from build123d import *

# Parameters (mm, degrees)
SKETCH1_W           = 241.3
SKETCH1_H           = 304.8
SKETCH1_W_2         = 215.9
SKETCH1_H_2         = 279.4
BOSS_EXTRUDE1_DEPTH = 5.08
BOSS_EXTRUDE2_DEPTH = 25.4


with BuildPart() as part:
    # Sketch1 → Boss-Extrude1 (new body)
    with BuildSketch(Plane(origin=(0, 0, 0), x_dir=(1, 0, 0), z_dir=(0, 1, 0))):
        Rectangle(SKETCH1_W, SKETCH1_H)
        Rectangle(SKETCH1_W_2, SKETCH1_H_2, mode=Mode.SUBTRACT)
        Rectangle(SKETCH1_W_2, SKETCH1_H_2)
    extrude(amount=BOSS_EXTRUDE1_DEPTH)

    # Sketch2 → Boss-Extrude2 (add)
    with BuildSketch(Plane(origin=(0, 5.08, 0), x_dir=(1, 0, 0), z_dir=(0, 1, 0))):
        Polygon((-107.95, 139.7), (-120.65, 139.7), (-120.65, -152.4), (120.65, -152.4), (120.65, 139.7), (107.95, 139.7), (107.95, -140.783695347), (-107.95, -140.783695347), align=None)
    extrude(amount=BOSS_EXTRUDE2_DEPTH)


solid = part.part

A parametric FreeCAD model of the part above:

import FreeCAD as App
import Part
import Sketcher

V = App.Vector
Q = App.Units.Quantity

doc = App.newDocument("Part")
params = doc.addObject("Spreadsheet::Sheet", "Params")
for row, (alias, value) in enumerate([
    ("sketch1_height", "12 in"),
    ("sketch1_width", "9.5 in"),
    ("pad1_length", "0.2 in"),
    ("sketch2_width", "0.5 in"),
    ("sketch2_width2", "9.5 in"),
    ("sketch2_height", "11.5 in"),
    ("pad2_length", "1 in"),
], start=1):
    params.set(f"A{row}", alias)
    params.set(f"B{row}", "=" + value)
    params.setAlias(f"B{row}", alias)

body = doc.addObject("PartDesign::Body", "Body")

# Sketch on XZ plane
sketch1 = body.newObject("Sketcher::SketchObject", "Sketch")
sketch1.AttachmentSupport = (doc.getObject("XZ_Plane"), [""])
sketch1.MapMode = "FlatFace"
sketch1.addGeometry([
    Part.LineSegment(V(-120.65, -152.4, 0), V(-120.65, 152.4, 0)),
    Part.LineSegment(V(-120.65, 152.4, 0), V(120.65, 152.4, 0)),
    Part.LineSegment(V(120.65, 152.4, 0), V(120.65, -152.4, 0)),
    Part.LineSegment(V(120.65, -152.4, 0), V(-120.65, -152.4, 0)),
], False)
sketch1.addConstraint([
    Sketcher.Constraint("Coincident", 0, 2, 1, 1),
    Sketcher.Constraint("Coincident", 1, 2, 2, 1),
    Sketcher.Constraint("Coincident", 2, 2, 3, 1),
    Sketcher.Constraint("Coincident", 3, 2, 0, 1),
    Sketcher.Constraint("Vertical", 0),
    Sketcher.Constraint("Horizontal", 1),
    Sketcher.Constraint("Vertical", 2),
    Sketcher.Constraint("Horizontal", 3),
    Sketcher.Constraint("Symmetric", 0, 2, 2, 2, -1, 1),
    Sketcher.Constraint("DistanceY", 0, 1, 0, 2, Q("12 in")),
    Sketcher.Constraint("DistanceX", 1, 1, 1, 2, Q("9.5 in")),
])
sketch1.setExpression("Constraints[9]", "Params.sketch1_height")
sketch1.setExpression("Constraints[10]", "Params.sketch1_width")
pad1 = body.newObject("PartDesign::Pad", "Pad")
pad1.Profile = sketch1
pad1.setExpression("Length", "Params.pad1_length")
pad1.Reversed = True

# Sketch on XZ plane
sketch2 = body.newObject("Sketcher::SketchObject", "Sketch001")
sketch2.AttachmentSupport = (doc.getObject("XZ_Plane"), [""])
sketch2.MapMode = "FlatFace"
sketch2.AttachmentOffset = App.Placement(V(0, 0, -0.2 * 25.4), App.Rotation())
sketch2.addGeometry([
    Part.LineSegment(V(-107.95, -139.7, 0), V(-120.65, -139.7, 0)),  # 0
    Part.LineSegment(V(-120.65, -139.7, 0), V(-120.65, 152.4, 0)),  # 1
    Part.LineSegment(V(-120.65, 152.4, 0), V(120.65, 152.4, 0)),  # 2
    Part.LineSegment(V(120.65, 152.4, 0), V(120.65, -139.7, 0)),  # 3
    Part.LineSegment(V(120.65, -139.7, 0), V(107.95, -139.7, 0)),  # 4
    Part.LineSegment(V(107.95, -139.7, 0), V(107.95, 140.783695, 0)),  # 5
    Part.LineSegment(V(107.95, 140.783695, 0), V(-107.95, 140.783695, 0)),  # 6
    Part.LineSegment(V(-107.95, 140.783695, 0), V(-107.95, -139.7, 0)),  # 7
], False)
sketch2.addConstraint([
    Sketcher.Constraint("Coincident", 0, 2, 1, 1),
    Sketcher.Constraint("Coincident", 1, 2, 2, 1),
    Sketcher.Constraint("Coincident", 2, 2, 3, 1),
    Sketcher.Constraint("Coincident", 3, 2, 4, 1),
    Sketcher.Constraint("Coincident", 4, 2, 5, 1),
    Sketcher.Constraint("Coincident", 5, 2, 6, 1),
    Sketcher.Constraint("Coincident", 6, 2, 7, 1),
    Sketcher.Constraint("Coincident", 7, 2, 0, 1),
    Sketcher.Constraint("Horizontal", 0),
    Sketcher.Constraint("Vertical", 1),
    Sketcher.Constraint("Horizontal", 2),
    Sketcher.Constraint("Vertical", 3),
    Sketcher.Constraint("Horizontal", 4),
    Sketcher.Constraint("Vertical", 5),
    Sketcher.Constraint("Horizontal", 6),
    Sketcher.Constraint("Vertical", 7),
    Sketcher.Constraint("Symmetric", 0, 2, 3, 2, -2),
    Sketcher.Constraint("Equal", 0, 4),
    Sketcher.Constraint("DistanceX", 0, 2, 0, 1, Q("0.5 in")),
    Sketcher.Constraint("DistanceX", 2, 1, 2, 2, Q("9.5 in")),
    Sketcher.Constraint("DistanceY", 1, 1, 1, 2, Q("11.5 in")),
    Sketcher.Constraint("DistanceY", -1, 1, 1, 2, Q("6 in")),
    Sketcher.Constraint("DistanceY", 5, 1, 5, 2, Q("280.483695 mm")),
])
sketch2.setExpression("Constraints[18]", "Params.sketch2_width")
sketch2.setExpression("Constraints[19]", "Params.sketch2_width2")
sketch2.setExpression("Constraints[20]", "Params.sketch2_height")
pad2 = body.newObject("PartDesign::Pad", "Pad001")
pad2.Profile = sketch2
pad2.setExpression("Length", "Params.pad2_length")
pad2.Reversed = True

doc.recompute()
